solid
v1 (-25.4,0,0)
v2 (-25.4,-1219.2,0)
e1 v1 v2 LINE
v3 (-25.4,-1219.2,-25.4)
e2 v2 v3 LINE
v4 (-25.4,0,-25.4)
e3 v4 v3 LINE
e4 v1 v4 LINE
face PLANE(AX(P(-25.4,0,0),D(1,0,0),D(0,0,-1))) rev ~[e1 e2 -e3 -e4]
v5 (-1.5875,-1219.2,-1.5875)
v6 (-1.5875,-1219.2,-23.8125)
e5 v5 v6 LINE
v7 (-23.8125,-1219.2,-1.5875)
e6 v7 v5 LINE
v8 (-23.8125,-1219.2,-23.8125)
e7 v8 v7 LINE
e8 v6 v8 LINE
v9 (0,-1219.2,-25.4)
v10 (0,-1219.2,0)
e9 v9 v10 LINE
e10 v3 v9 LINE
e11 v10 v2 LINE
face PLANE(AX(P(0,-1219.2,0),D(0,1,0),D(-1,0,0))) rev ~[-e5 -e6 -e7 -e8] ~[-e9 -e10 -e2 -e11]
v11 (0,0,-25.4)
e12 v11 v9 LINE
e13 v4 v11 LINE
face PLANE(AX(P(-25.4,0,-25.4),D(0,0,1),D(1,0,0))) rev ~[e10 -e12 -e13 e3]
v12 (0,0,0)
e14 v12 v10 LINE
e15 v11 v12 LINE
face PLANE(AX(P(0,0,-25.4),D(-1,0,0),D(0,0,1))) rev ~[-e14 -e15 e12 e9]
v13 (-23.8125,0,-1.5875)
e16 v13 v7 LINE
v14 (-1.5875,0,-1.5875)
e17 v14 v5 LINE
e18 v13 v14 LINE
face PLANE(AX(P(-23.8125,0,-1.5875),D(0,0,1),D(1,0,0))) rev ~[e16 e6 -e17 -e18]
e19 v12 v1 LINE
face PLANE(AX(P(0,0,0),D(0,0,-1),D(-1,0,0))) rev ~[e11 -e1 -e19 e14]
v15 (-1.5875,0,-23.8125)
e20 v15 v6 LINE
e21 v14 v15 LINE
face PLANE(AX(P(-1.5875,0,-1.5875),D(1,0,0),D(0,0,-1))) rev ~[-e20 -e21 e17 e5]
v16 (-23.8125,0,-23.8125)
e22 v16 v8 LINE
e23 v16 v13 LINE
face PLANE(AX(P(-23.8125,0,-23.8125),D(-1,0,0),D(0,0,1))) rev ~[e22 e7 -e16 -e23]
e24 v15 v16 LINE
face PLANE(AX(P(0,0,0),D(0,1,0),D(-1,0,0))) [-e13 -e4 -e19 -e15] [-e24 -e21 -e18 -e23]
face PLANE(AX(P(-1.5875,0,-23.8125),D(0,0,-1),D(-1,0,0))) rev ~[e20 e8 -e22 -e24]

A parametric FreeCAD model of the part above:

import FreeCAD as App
import Part
import Sketcher
from FreeCAD import Vector
Q = App.Units.Quantity

doc = App.newDocument("Part")
body = doc.addObject("PartDesign::Body", "Body")

sketch1 = body.newObject("Sketcher::SketchObject", "Sketch")
sketch1.AttachmentSupport = (doc.getObject("XZ_Plane"), [""])
sketch1.MapMode = "FlatFace"
sketch1.addGeometry(Part.LineSegment(Vector(-25, 0, 0), Vector(0, 0, 0)), False)
sketch1.addGeometry(Part.LineSegment(Vector(0, 0, 0), Vector(0, -25, 0)), False)
sketch1.addGeometry(Part.LineSegment(Vector(0, -25, 0), Vector(-25, -25, 0)), False)
sketch1.addGeometry(Part.LineSegment(Vector(-25, -25, 0), Vector(-25, 0, 0)), False)
sketch1.addGeometry(Part.LineSegment(Vector(-24, -2, 0), Vector(-24, -24, 0)), False)
sketch1.addGeometry(Part.LineSegment(Vector(-24, -24, 0), Vector(-2, -24, 0)), False)
sketch1.addGeometry(Part.LineSegment(Vector(-2, -24, 0), Vector(-2, -2, 0)), False)
sketch1.addGeometry(Part.LineSegment(Vector(-2, -2, 0), Vector(-24, -2, 0)), False)
sketch1.addConstraint(Sketcher.Constraint("Coincident", 0, 2, 1, 1))
sketch1.addConstraint(Sketcher.Constraint("Coincident", 1, 2, 2, 1))
sketch1.addConstraint(Sketcher.Constraint("Coincident", 2, 2, 3, 1))
sketch1.addConstraint(Sketcher.Constraint("Coincident", 3, 2, 0, 1))
sketch1.addConstraint(Sketcher.Constraint("Coincident", 4, 2, 5, 1))
sketch1.addConstraint(Sketcher.Constraint("Coincident", 5, 2, 6, 1))
sketch1.addConstraint(Sketcher.Constraint("Coincident", 6, 2, 7, 1))
sketch1.addConstraint(Sketcher.Constraint("Coincident", 7, 2, 4, 1))
sketch1.addConstraint(Sketcher.Constraint("Horizontal", 0))
sketch1.addConstraint(Sketcher.Constraint("Vertical", 1))
sketch1.addConstraint(Sketcher.Constraint("Horizontal", 2))
sketch1.addConstraint(Sketcher.Constraint("Vertical", 3))
sketch1.addConstraint(Sketcher.Constraint("Vertical", 4))
sketch1.addConstraint(Sketcher.Constraint("Horizontal", 5))
sketch1.addConstraint(Sketcher.Constraint("Vertical", 6))
sketch1.addConstraint(Sketcher.Constraint("Horizontal", 7))
sketch1.addConstraint(Sketcher.Constraint("Coincident", 0, 2, -1, 1))
sketch1.addConstraint(Sketcher.Constraint("Equal", 2, 1))
sketch1.addConstraint(Sketcher.Constraint("Equal", 7, 4))
sketch1.addConstraint(Sketcher.Constraint("DistanceX", 0, 1, 0, 2, Q("1 in")))
sketch1.addConstraint(Sketcher.Constraint("DistanceX", 5, 2, -1, 1, Q("0.0625 in")))
sketch1.addConstraint(Sketcher.Constraint("DistanceY", 6, 2, -1, 1, Q("0.0625 in")))
sketch1.addConstraint(Sketcher.Constraint("DistanceX", 2, 2, 4, 2, Q("0.0625 in")))
pad1 = body.newObject("PartDesign::Pad", "Pad")
pad1.Profile = sketch1
pad1.Length = Q("48 in")

doc.recompute()
